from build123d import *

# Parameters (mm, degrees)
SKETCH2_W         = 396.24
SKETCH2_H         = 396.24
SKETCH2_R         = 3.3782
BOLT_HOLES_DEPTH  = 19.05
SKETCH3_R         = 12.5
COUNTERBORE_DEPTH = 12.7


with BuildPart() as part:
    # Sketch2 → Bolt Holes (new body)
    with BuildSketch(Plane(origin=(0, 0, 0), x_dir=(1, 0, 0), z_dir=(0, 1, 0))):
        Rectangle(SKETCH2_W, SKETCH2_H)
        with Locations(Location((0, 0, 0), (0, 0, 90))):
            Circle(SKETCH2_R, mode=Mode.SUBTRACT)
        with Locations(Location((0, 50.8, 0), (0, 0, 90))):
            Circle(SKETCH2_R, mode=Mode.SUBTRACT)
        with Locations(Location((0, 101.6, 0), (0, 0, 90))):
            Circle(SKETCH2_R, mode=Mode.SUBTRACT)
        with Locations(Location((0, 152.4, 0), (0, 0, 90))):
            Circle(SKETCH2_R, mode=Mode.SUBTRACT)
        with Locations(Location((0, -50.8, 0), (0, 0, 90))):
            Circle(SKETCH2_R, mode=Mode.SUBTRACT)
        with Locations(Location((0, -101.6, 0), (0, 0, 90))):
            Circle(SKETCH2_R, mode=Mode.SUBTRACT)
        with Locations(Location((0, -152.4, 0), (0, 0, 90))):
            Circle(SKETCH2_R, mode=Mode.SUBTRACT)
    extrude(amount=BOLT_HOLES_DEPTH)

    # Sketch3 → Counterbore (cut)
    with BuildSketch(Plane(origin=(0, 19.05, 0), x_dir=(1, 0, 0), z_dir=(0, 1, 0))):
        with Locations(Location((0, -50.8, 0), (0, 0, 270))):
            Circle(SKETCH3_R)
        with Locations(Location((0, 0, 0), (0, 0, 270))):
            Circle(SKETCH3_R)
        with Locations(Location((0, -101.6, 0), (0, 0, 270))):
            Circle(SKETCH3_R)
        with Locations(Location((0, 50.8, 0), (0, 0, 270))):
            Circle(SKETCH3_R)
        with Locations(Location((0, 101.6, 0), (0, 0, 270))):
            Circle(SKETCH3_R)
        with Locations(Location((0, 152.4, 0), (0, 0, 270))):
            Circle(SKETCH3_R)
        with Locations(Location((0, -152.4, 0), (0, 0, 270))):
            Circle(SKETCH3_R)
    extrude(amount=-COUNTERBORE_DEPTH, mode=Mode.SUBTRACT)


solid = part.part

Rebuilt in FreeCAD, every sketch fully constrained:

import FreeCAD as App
import Part
import Sketcher
from FreeCAD import Vector
Q = App.Units.Quantity

doc = App.newDocument("Part")
body = doc.addObject("PartDesign::Body", "Body")

# Sketch on XZ plane
sketch1 = body.newObject("Sketcher::SketchObject", "Sketch")
sketch1.AttachmentSupport = (doc.getObject("XZ_Plane"), [""])
sketch1.MapMode = "FlatFace"
sketch1.addGeometry([
    Part.LineSegment(Vector(-198.1, -198.1, 0), Vector(-198.1, 198.1, 0)),  # 0
    Part.LineSegment(Vector(-198.1, 198.1, 0), Vector(198.1, 198.1, 0)),  # 1
    Part.LineSegment(Vector(198.1, 198.1, 0), Vector(198.1, -198.1, 0)),  # 2
    Part.LineSegment(Vector(198.1, -198.1, 0), Vector(-198.1, -198.1, 0)),  # 3
    Part.Circle(Vector(0, 152.4, 0), Vector(0, 0, 1), 3.4),  # 4
    Part.Circle(Vector(0, 101.6, 0), Vector(0, 0, 1), 3.4),  # 5
    Part.Circle(Vector(0, 50.8, 0), Vector(0, 0, 1), 3.4),  # 6
    Part.Circle(Vector(0, 0, 0), Vector(0, 0, 1), 3.4),  # 7
    Part.Circle(Vector(0, -50.8, 0), Vector(0, 0, 1), 3.4),  # 8
    Part.Circle(Vector(0, -101.6, 0), Vector(0, 0, 1), 3.4),  # 9
    Part.Circle(Vector(0, -152.4, 0), Vector(0, 0, 1), 3.4),  # 10
], False)
sketch1.addConstraint([
    Sketcher.Constraint("Coincident", 0, 2, 1, 1),
    Sketcher.Constraint("Coincident", 1, 2, 2, 1),
    Sketcher.Constraint("Coincident", 2, 2, 3, 1),
    Sketcher.Constraint("Coincident", 3, 2, 0, 1),
    Sketcher.Constraint("Vertical", 0),
    Sketcher.Constraint("Horizontal", 1),
    Sketcher.Constraint("Vertical", 2),
    Sketcher.Constraint("Horizontal", 3),
    Sketcher.Constraint("Coincident", 7, 3, -1, 1),
    Sketcher.Constraint("Equal", 4, 5),
    Sketcher.Constraint("Equal", 5, 6),
    Sketcher.Constraint("Equal", 6, 7),
    Sketcher.Constraint("Equal", 7, 8),
    Sketcher.Constraint("Equal", 8, 9),
    Sketcher.Constraint("Equal", 9, 10),
    Sketcher.Constraint("Symmetric", 6, 3, 8, 3, -1, 1),
    Sketcher.Constraint("Symmetric", 5, 3, 9, 3, -1, 1),
    Sketcher.Constraint("Symmetric", 4, 3, 10, 3, -1, 1),
    Sketcher.Constraint("Symmetric", 0, 2, 2, 2, -1, 1),
    Sketcher.Constraint("PointOnObject", 4, 3, -2),
    Sketcher.Constraint("PointOnObject", 5, 3, -2),
    Sketcher.Constraint("PointOnObject", 6, 3, -2),
    Sketcher.Constraint("Equal", 3, 0),
    Sketcher.Constraint("Diameter", 4, Q("0.266 in")),
    Sketcher.Constraint("DistanceX", 1, 1, 1, 2, Q("15.6 in")),
    Sketcher.Constraint("DistanceY", -1, 1, 4, 3, Q("6 in")),
    Sketcher.Constraint("DistanceY", -1, 1, 5, 3, Q("4 in")),
    Sketcher.Constraint("DistanceY", -1, 1, 6, 3, Q("2 in")),
])
pad1 = body.newObject("PartDesign::Pad", "Pad")
pad1.Profile = sketch1
pad1.Length = Q("0.75 in")
pad1.Reversed = True

# Sketch on XZ plane
sketch2 = body.newObject("Sketcher::SketchObject", "Sketch001")
sketch2.AttachmentSupport = (doc.getObject("XZ_Plane"), [""])
sketch2.MapMode = "FlatFace"
sketch2.AttachmentOffset = App.Placement(Vector(0, 0, -0.75 * 25.4), App.Rotation())
sketch2.addGeometry([
    Part.Circle(Vector(0, 51, 0), Vector(0, 0, 1), 12),  # 0
    Part.Circle(Vector(0, 0, 0), Vector(0, 0, 1), 12),  # 1
    Part.Circle(Vector(0, 102, 0), Vector(0, 0, 1), 12),  # 2
    Part.Circle(Vector(0, -51, 0), Vector(0, 0, 1), 12),  # 3
    Part.Circle(Vector(0, -102, 0), Vector(0, 0, 1), 12),  # 4
    Part.Circle(Vector(0, -152, 0), Vector(0, 0, 1), 12),  # 5
    Part.Circle(Vector(0, 152, 0), Vector(0, 0, 1), 12),  # 6
], False)
sketch2.addConstraint([
    Sketcher.Constraint("Coincident", 1, 3, -1, 1),
    Sketcher.Constraint("Equal", 0, 1),
    Sketcher.Constraint("Equal", 1, 2),
    Sketcher.Constraint("Equal", 2, 3),
    Sketcher.Constraint("Equal", 3, 4),
    Sketcher.Constraint("Equal", 4, 5),
    Sketcher.Constraint("Equal", 5, 6),
    Sketcher.Constraint("Symmetric", 0, 3, 3, 3, -1, 1),
    Sketcher.Constraint("Symmetric", 2, 3, 4, 3, -1, 1),
    Sketcher.Constraint("Symmetric", 5, 3, 6, 3, -1, 1),
    Sketcher.Constraint("PointOnObject", 0, 3, -2),
    Sketcher.Constraint("PointOnObject", 2, 3, -2),
    Sketcher.Constraint("PointOnObject", 5, 3, -2),
    Sketcher.Constraint("DistanceY", -1, 1, 0, 3, Q("2 in")),
    Sketcher.Constraint("DistanceY", -1, 1, 2, 3, Q("4 in")),
    Sketcher.Constraint("DistanceY", 5, 3, -1, 1, Q("6 in")),
    Sketcher.Constraint("Diameter", 0, 25.0),
])
pocket1 = body.newObject("PartDesign::Pocket", "Pocket")
pocket1.Profile = sketch2
pocket1.Length = Q("0.5 in")
pocket1.Reversed = True

doc.recompute()
